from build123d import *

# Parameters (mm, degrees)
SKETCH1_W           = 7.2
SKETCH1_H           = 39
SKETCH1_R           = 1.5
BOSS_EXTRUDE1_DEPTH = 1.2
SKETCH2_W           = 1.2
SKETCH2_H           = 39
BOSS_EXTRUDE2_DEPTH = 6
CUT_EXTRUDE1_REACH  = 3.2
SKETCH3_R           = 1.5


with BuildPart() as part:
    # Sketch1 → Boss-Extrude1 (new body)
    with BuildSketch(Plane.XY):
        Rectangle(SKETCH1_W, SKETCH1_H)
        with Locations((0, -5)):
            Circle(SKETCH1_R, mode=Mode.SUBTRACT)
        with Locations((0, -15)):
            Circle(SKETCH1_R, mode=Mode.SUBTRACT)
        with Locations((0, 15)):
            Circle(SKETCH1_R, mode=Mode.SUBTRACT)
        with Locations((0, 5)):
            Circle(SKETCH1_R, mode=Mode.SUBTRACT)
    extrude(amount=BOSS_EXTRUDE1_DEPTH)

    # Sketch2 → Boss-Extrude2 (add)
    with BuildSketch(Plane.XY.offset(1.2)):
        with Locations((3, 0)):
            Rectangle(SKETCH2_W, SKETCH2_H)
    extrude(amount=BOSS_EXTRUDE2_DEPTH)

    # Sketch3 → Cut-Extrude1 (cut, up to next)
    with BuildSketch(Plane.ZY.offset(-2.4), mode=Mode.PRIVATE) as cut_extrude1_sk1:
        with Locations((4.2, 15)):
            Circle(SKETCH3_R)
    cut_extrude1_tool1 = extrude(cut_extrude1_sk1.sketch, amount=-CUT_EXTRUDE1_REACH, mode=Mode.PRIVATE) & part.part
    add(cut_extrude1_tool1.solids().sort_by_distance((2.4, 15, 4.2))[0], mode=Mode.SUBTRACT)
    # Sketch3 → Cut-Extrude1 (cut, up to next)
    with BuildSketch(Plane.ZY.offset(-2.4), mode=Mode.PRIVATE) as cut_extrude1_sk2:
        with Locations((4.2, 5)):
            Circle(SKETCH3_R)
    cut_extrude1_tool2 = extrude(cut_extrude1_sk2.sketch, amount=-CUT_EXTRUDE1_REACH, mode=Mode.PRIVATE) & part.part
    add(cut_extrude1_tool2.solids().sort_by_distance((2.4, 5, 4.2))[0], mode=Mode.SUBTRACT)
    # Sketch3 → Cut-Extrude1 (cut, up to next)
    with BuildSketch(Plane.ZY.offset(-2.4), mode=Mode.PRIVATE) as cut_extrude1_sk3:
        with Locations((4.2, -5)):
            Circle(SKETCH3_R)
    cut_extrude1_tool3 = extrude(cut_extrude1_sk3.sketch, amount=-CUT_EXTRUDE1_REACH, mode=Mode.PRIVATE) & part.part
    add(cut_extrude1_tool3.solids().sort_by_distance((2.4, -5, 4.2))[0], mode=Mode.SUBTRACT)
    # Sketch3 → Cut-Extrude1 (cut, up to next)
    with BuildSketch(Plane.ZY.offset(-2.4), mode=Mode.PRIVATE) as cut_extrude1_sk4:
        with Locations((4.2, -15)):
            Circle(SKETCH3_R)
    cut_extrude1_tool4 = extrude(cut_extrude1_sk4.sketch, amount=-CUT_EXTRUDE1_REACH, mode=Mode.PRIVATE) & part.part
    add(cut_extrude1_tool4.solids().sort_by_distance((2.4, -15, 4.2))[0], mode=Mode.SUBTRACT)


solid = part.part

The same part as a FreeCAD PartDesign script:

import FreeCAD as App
import Part
import Sketcher
Q = App.Units.Quantity


def add_polygon(sketch, points):
    """Adds a closed chain of lines whose ends are joined by coincident constraints."""
    first, n = sketch.GeometryCount, len(points)
    for a, b in zip(points, points[1:] + points[:1]):
        sketch.addGeometry(Part.LineSegment(App.Vector(*a, 0), App.Vector(*b, 0)), False)
    for i in range(n):
        sketch.addConstraint(Sketcher.Constraint("Coincident", first + i, 2, first + (i + 1) % n, 1))

doc = App.newDocument("Part")
body = doc.addObject("PartDesign::Body", "Body")

sketch1 = doc.addObject("Sketcher::SketchObject", "Sketch")
body.addObject(sketch1)
sketch1.AttachmentSupport = (doc.XY_Plane, [""])
sketch1.MapMode = "FlatFace"
add_polygon(sketch1, [(-3.6, 19.5), (-3.6, -19.5), (3.6, -19.5), (3.6, 19.5)])
sketch1.addGeometry(Part.Circle(App.Vector(0, -15, 0), App.Vector(0, 0, 1), 1.5), False)
sketch1.addGeometry(Part.Circle(App.Vector(0, -5, 0), App.Vector(0, 0, 1), 1.5), False)
sketch1.addGeometry(Part.Circle(App.Vector(0, 5, 0), App.Vector(0, 0, 1), 1.5), False)
sketch1.addGeometry(Part.Circle(App.Vector(0, 15, 0), App.Vector(0, 0, 1), 1.5), False)
sketch1.addConstraint([
    Sketcher.Constraint("Vertical", 0),
    Sketcher.Constraint("Horizontal", 1),
    Sketcher.Constraint("Vertical", 2),
    Sketcher.Constraint("Horizontal", 3),
    Sketcher.Constraint("Equal", 4, 5),
    Sketcher.Constraint("Equal", 5, 6),
    Sketcher.Constraint("Equal", 6, 7),
    Sketcher.Constraint("Symmetric", 5, 3, 6, 3, -1, 1),
    Sketcher.Constraint("Symmetric", 4, 3, 7, 3, -1, 1),
    Sketcher.Constraint("Symmetric", 0, 2, 2, 2, -1, 1),
    Sketcher.Constraint("PointOnObject", 4, 3, -2),
    Sketcher.Constraint("PointOnObject", 5, 3, -2),
    Sketcher.Constraint("Diameter", 4, Q("3 mm")),
    Sketcher.Constraint("DistanceY", 0, 2, 0, 1, Q("39 mm")),
    Sketcher.Constraint("DistanceX", 1, 1, 1, 2, Q("7.2 mm")),
    Sketcher.Constraint("DistanceY", 4, 3, -1, 1, Q("15 mm")),
    Sketcher.Constraint("DistanceY", 5, 3, -1, 1, Q("5 mm")),
])
pad1 = doc.addObject("PartDesign::Pad", "Pad")
body.addObject(pad1)
pad1.Profile = sketch1
pad1.Length = 1.2

sketch2 = doc.addObject("Sketcher::SketchObject", "Sketch001")
body.addObject(sketch2)
sketch2.AttachmentSupport = (doc.XY_Plane, [""])
sketch2.MapMode = "FlatFace"
sketch2.AttachmentOffset = App.Placement(App.Vector(0, 0, 1.2), App.Rotation())
add_polygon(sketch2, [(2.4, 19.5), (2.4, -19.5), (3.6, -19.5), (3.6, 19.5)])
sketch2.addConstraint([
    Sketcher.Constraint("Vertical", 0),
    Sketcher.Constraint("Horizontal", 1),
    Sketcher.Constraint("Vertical", 2),
    Sketcher.Constraint("Horizontal", 3),
    Sketcher.Constraint("DistanceY", 0, 2, 0, 1, Q("39 mm")),
    Sketcher.Constraint("DistanceX", 1, 1, 1, 2, Q("1.2 mm")),
    Sketcher.Constraint("DistanceX", -1, 1, 0, 2, Q("2.4 mm")),
    Sketcher.Constraint("DistanceY", 0, 2, -1, 1, Q("19.5 mm")),
])
pad2 = doc.addObject("PartDesign::Pad", "Pad001")
body.addObject(pad2)
pad2.Profile = sketch2
pad2.Length = 6

sketch3 = doc.addObject("Sketcher::SketchObject", "Sketch002")
body.addObject(sketch3)
sketch3.AttachmentSupport = (doc.YZ_Plane, [""])
sketch3.MapMode = "FlatFace"
sketch3.AttachmentOffset = App.Placement(App.Vector(0, 0, 2.4), App.Rotation())
sketch3.addGeometry(Part.Circle(App.Vector(15, 4.2, 0), App.Vector(0, 0, 1), 1.5), False)
sketch3.addConstraint([
    Sketcher.Constraint("Diameter", 0, Q("3 mm")),
    Sketcher.Constraint("DistanceX", -1, 1, 0, 3, Q("15 mm")),
    Sketcher.Constraint("DistanceY", -1, 1, 0, 3, Q("4.2 mm")),
])
pocket1 = doc.addObject("PartDesign::Pocket", "Pocket")
body.addObject(pocket1)
pocket1.Profile = sketch3
pocket1.Type = "UpToFirst"
pocket1.Reversed = True

sketch4 = doc.addObject("Sketcher::SketchObject", "Sketch003")
body.addObject(sketch4)
sketch4.AttachmentSupport = (doc.YZ_Plane, [""])
sketch4.MapMode = "FlatFace"
sketch4.AttachmentOffset = App.Placement(App.Vector(0, 0, 2.4), App.Rotation())
sketch4.addGeometry(Part.Circle(App.Vector(5, 4.2, 0), App.Vector(0, 0, 1), 1.5), False)
sketch4.addConstraint([
    Sketcher.Constraint("Diameter", 0, Q("3 mm")),
    Sketcher.Constraint("DistanceX", -1, 1, 0, 3, Q("5 mm")),
    Sketcher.Constraint("DistanceY", -1, 1, 0, 3, Q("4.2 mm")),
])
pocket2 = doc.addObject("PartDesign::Pocket", "Pocket001")
body.addObject(pocket2)
pocket2.Profile = sketch4
pocket2.Type = "UpToFirst"
pocket2.Reversed = True

sketch5 = doc.addObject("Sketcher::SketchObject", "Sketch004")
body.addObject(sketch5)
sketch5.AttachmentSupport = (doc.YZ_Plane, [""])
sketch5.MapMode = "FlatFace"
sketch5.AttachmentOffset = App.Placement(App.Vector(0, 0, 2.4), App.Rotation())
sketch5.addGeometry(Part.Circle(App.Vector(-5, 4.2, 0), App.Vector(0, 0, 1), 1.5), False)
sketch5.addConstraint([
    Sketcher.Constraint("Diameter", 0, Q("3 mm")),
    Sketcher.Constraint("DistanceX", 0, 3, -1, 1, Q("5 mm")),
    Sketcher.Constraint("DistanceY", -1, 1, 0, 3, Q("4.2 mm")),
])
pocket3 = doc.addObject("PartDesign::Pocket", "Pocket002")
body.addObject(pocket3)
pocket3.Profile = sketch5
pocket3.Type = "UpToFirst"
pocket3.Reversed = True

sketch6 = doc.addObject("Sketcher::SketchObject", "Sketch005")
body.addObject(sketch6)
sketch6.AttachmentSupport = (doc.YZ_Plane, [""])
sketch6.MapMode = "FlatFace"
sketch6.AttachmentOffset = App.Placement(App.Vector(0, 0, 2.4), App.Rotation())
sketch6.addGeometry(Part.Circle(App.Vector(-15, 4.2, 0), App.Vector(0, 0, 1), 1.5), False)
sketch6.addConstraint([
    Sketcher.Constraint("Diameter", 0, Q("3 mm")),
    Sketcher.Constraint("DistanceX", 0, 3, -1, 1, Q("15 mm")),
    Sketcher.Constraint("DistanceY", -1, 1, 0, 3, Q("4.2 mm")),
])
pocket4 = doc.addObject("PartDesign::Pocket", "Pocket003")
body.addObject(pocket4)
pocket4.Profile = sketch6
pocket4.Type = "UpToFirst"
pocket4.Reversed = True

doc.recompute()
